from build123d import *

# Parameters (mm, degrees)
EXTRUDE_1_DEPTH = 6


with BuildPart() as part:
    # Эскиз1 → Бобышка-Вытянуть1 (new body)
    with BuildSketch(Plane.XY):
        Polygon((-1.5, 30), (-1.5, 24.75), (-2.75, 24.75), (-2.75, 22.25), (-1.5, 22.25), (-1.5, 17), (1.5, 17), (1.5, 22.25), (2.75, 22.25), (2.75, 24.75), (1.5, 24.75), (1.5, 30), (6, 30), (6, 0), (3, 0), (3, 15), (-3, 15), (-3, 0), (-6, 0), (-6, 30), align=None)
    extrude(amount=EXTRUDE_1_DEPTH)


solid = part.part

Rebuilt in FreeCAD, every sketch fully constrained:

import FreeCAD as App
import Part
import Sketcher
from FreeCAD import Vector


def add_polygon(sketch, points):
    """Adds a closed chain of lines whose ends are joined by coincident constraints."""
    first, n = sketch.GeometryCount, len(points)
    for a, b in zip(points, points[1:] + points[:1]):
        sketch.addGeometry(Part.LineSegment(App.Vector(*a, 0), App.Vector(*b, 0)), False)
    for i in range(n):
        sketch.addConstraint(Sketcher.Constraint("Coincident", first + i, 2, first + (i + 1) % n, 1))

doc = App.newDocument("Part")
params = doc.addObject("Spreadsheet::Sheet", "Params")
for row, (alias, value) in enumerate([
    ("sketch1_width", "3 mm"),
    ("sketch1_width2", "6 mm"),
    ("sketch1_height", "30 mm"),
    ("sketch1_height2", "15 mm"),
    ("sketch1_height3", "2.5 mm"),
    ("pad1_length", "6 mm"),
], start=1):
    params.set(f"A{row}", alias)
    params.set(f"B{row}", "=" + value)
    params.setAlias(f"B{row}", alias)

body = doc.addObject("PartDesign::Body", "Body")

sketch1 = body.newObject("Sketcher::SketchObject", "Sketch")
sketch1.AttachmentSupport = (doc.getObject("XY_Plane"), [""])
sketch1.MapMode = "FlatFace"
add_polygon(sketch1, [(-1.5, 24.8), (-1.5, 30), (-6, 30), (-6, 0), (-3, 0), (-3, 15), (3, 15), (3, 0), (6, 0), (6, 30), (1.5, 30), (1.5, 24.8), (2.8, 24.8), (2.8, 22.2), (1.5, 22.2), (1.5, 17), (-1.5, 17), (-1.5, 22.2), (-2.8, 22.2), (-2.8, 24.8)])
sketch1.addConstraint(Sketcher.Constraint("Vertical", 0))
sketch1.addConstraint(Sketcher.Constraint("Horizontal", 1))
sketch1.addConstraint(Sketcher.Constraint("Vertical", 2))
sketch1.addConstraint(Sketcher.Constraint("Horizontal", 3))
sketch1.addConstraint(Sketcher.Constraint("Vertical", 4))
sketch1.addConstraint(Sketcher.Constraint("Horizontal", 5))
sketch1.addConstraint(Sketcher.Constraint("Vertical", 6))
sketch1.addConstraint(Sketcher.Constraint("Horizontal", 7))
sketch1.addConstraint(Sketcher.Constraint("Vertical", 8))
sketch1.addConstraint(Sketcher.Constraint("Horizontal", 9))
sketch1.addConstraint(Sketcher.Constraint("Vertical", 10))
sketch1.addConstraint(Sketcher.Constraint("Horizontal", 11))
sketch1.addConstraint(Sketcher.Constraint("Vertical", 12))
sketch1.addConstraint(Sketcher.Constraint("Horizontal", 13))
sketch1.addConstraint(Sketcher.Constraint("Vertical", 14))
sketch1.addConstraint(Sketcher.Constraint("Horizontal", 15))
sketch1.addConstraint(Sketcher.Constraint("Vertical", 16))
sketch1.addConstraint(Sketcher.Constraint("Horizontal", 17))
sketch1.addConstraint(Sketcher.Constraint("Vertical", 18))
sketch1.addConstraint(Sketcher.Constraint("Horizontal", 19))
sketch1.addConstraint(Sketcher.Constraint("Symmetric", 3, 2, 6, 2, -1, 1))
sketch1.addConstraint(Sketcher.Constraint("Symmetric", 2, 2, 7, 2, -2))
sketch1.addConstraint(Sketcher.Constraint("Symmetric", 0, 2, 9, 2, -2))
sketch1.addConstraint(Sketcher.Constraint("Symmetric", 13, 2, 16, 2, -2))
sketch1.addConstraint(Sketcher.Constraint("Symmetric", 11, 2, 18, 2, -2))
sketch1.addConstraint(Sketcher.Constraint("Vertical", 10, 2, 13, 2))
sketch1.addConstraint(Sketcher.Constraint("Equal", 7, 15))
sketch1.addConstraint(Sketcher.Constraint("Equal", 10, 14))
sketch1.addConstraint(Sketcher.Constraint("DistanceX", 3, 1, 3, 2, 3.0))
sketch1.addConstraint(Sketcher.Constraint("DistanceX", 5, 1, 5, 2, 6.0))
sketch1.addConstraint(Sketcher.Constraint("DistanceY", 2, 2, 2, 1, 30.0))
sketch1.addConstraint(Sketcher.Constraint("DistanceY", 4, 1, 4, 2, 15.0))
sketch1.addConstraint(Sketcher.Constraint("DistanceY", 12, 2, 12, 1, 2.5))
sketch1.addConstraint(Sketcher.Constraint("DistanceY", -1, 1, 14, 2, 17.0))
sketch1.addConstraint(Sketcher.Constraint("DistanceX", 11, 1, 11, 2, 1.25))
sketch1.setExpression("Constraints[48]", "Params.sketch1_width")
sketch1.setExpression("Constraints[49]", "Params.sketch1_width2")
sketch1.setExpression("Constraints[50]", "Params.sketch1_height")
sketch1.setExpression("Constraints[51]", "Params.sketch1_height2")
sketch1.setExpression("Constraints[52]", "Params.sketch1_height3")
pad1 = body.newObject("PartDesign::Pad", "Pad")
pad1.Profile = sketch1
pad1.setExpression("Length", "Params.pad1_length")

doc.recompute()
